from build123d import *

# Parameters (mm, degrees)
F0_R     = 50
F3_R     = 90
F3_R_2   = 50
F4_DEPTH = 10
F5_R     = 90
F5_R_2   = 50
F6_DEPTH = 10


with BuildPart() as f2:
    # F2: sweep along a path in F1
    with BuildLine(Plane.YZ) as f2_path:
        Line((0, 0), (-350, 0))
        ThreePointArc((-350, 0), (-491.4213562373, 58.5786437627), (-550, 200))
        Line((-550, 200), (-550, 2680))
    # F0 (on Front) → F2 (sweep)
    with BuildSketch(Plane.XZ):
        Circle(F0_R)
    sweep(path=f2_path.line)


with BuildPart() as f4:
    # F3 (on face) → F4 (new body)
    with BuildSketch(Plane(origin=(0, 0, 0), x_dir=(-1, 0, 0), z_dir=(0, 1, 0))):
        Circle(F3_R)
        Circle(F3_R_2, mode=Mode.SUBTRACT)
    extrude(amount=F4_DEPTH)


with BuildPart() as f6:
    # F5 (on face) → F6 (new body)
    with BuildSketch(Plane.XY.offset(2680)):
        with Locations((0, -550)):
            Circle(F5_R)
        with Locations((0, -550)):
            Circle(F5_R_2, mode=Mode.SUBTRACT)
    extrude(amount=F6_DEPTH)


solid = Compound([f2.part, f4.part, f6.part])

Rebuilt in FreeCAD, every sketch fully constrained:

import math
import FreeCAD as App
import Part
import Sketcher

V = App.Vector

doc = App.newDocument("Part")
params = doc.addObject("Spreadsheet::Sheet", "Params")
for row, (alias, value) in enumerate([
    ("sketch1_diameter", "100 mm"),
    ("sketch2_radius", "200 mm"),
    ("sketch2_width", "350 mm"),
    ("sketch2_height", "2480 mm"),
    ("sketch3_diameter", "180 mm"),
    ("sketch3_diameter2", "100 mm"),
    ("pad1_length", "10 mm"),
    ("sketch4_diameter", "180 mm"),
    ("sketch4_diameter2", "100 mm"),
    ("pad2_length", "10 mm"),
], start=1):
    params.set(f"A{row}", alias)
    params.set(f"B{row}", "=" + value)
    params.setAlias(f"B{row}", alias)

body = doc.addObject("PartDesign::Body", "Body")

sketch1 = body.newObject("Sketcher::SketchObject", "Sketch")
sketch1.AttachmentSupport = (doc.getObject("XZ_Plane"), [""])
sketch1.MapMode = "FlatFace"
sketch1.addGeometry(Part.Circle(V(0, 0, 0), V(0, 0, 1), 50), False)
sketch1.addConstraint([
    Sketcher.Constraint("Coincident", 0, 3, -1, 1),
    Sketcher.Constraint("Diameter", 0, 100.0),
])
sketch1.setExpression("Constraints[1]", "Params.sketch1_diameter")

sketch2 = body.newObject("Sketcher::SketchObject", "Sketch001")
sketch2.AttachmentSupport = (doc.getObject("YZ_Plane"), [""])
sketch2.MapMode = "FlatFace"
sketch2.addGeometry([
    Part.LineSegment(V(0, 0, 0), V(-350, 0, 0)),
    Part.ArcOfCircle(Part.Circle(V(-350, 200, 0), V(0, 0, 1), 200), math.radians(180), math.radians(270)),
    Part.LineSegment(V(-550, 200, 0), V(-550, 2680, 0)),
], False)
sketch2.addConstraint([
    Sketcher.Constraint("Tangent", 0, 2, 1, 2),
    Sketcher.Constraint("Tangent", 1, 1, 2, 1),
    Sketcher.Constraint("Horizontal", 0),
    Sketcher.Constraint("Vertical", 2),
    Sketcher.Constraint("Coincident", 0, 1, -1, 1),
    Sketcher.Constraint("Radius", 1, 200.0),
    Sketcher.Constraint("DistanceX", 0, 2, 0, 1, 350.0),
    Sketcher.Constraint("DistanceY", 2, 1, 2, 2, 2480.0),
])
sketch2.setExpression("Constraints[5]", "Params.sketch2_radius")
sketch2.setExpression("Constraints[6]", "Params.sketch2_width")
sketch2.setExpression("Constraints[7]", "Params.sketch2_height")
doc.recompute()

additivepipe = body.newObject("PartDesign::AdditivePipe", "AdditivePipe")
additivepipe.Profile = sketch1
additivepipe.Spine = (sketch2, ["Edge1", "Edge2", "Edge3"])
body2 = doc.addObject("PartDesign::Body", "Body001")

sketch3 = body2.newObject("Sketcher::SketchObject", "Sketch002")
sketch3.AttachmentSupport = (doc.getObject("XZ_Plane001"), [""])
sketch3.MapMode = "FlatFace"
sketch3.addGeometry([
    Part.Circle(V(0, 0, 0), V(0, 0, 1), 90),
    Part.Circle(V(0, 0, 0), V(0, 0, 1), 50),
], False)
sketch3.addConstraint([
    Sketcher.Constraint("Coincident", 0, 3, -1, 1),
    Sketcher.Constraint("Coincident", 1, 3, -1, 1),
    Sketcher.Constraint("Diameter", 0, 180.0),
    Sketcher.Constraint("Diameter", 1, 100.0),
])
sketch3.setExpression("Constraints[2]", "Params.sketch3_diameter")
sketch3.setExpression("Constraints[3]", "Params.sketch3_diameter2")
pad1 = body2.newObject("PartDesign::Pad", "Pad")
pad1.Profile = sketch3
pad1.setExpression("Length", "Params.pad1_length")
pad1.Reversed = True
body3 = doc.addObject("PartDesign::Body", "Body002")

sketch4 = body3.newObject("Sketcher::SketchObject", "Sketch003")
sketch4.AttachmentSupport = (doc.getObject("XY_Plane002"), [""])
sketch4.MapMode = "FlatFace"
sketch4.AttachmentOffset = App.Placement(V(0, 0, 2680), App.Rotation())
sketch4.addGeometry([
    Part.Circle(V(0, -550, 0), V(0, 0, 1), 90),
    Part.Circle(V(0, -550, 0), V(0, 0, 1), 50),
], False)
sketch4.addConstraint([
    Sketcher.Constraint("Coincident", 1, 3, 0, 3),
    Sketcher.Constraint("PointOnObject", 0, 3, -2),
    Sketcher.Constraint("Diameter", 0, 180.0),
    Sketcher.Constraint("Diameter", 1, 100.0),
    Sketcher.Constraint("DistanceY", 0, 3, -1, 1, 550.0),
])
sketch4.setExpression("Constraints[2]", "Params.sketch4_diameter")
sketch4.setExpression("Constraints[3]", "Params.sketch4_diameter2")
pad2 = body3.newObject("PartDesign::Pad", "Pad001")
pad2.Profile = sketch4
pad2.setExpression("Length", "Params.pad2_length")

doc.recompute()
